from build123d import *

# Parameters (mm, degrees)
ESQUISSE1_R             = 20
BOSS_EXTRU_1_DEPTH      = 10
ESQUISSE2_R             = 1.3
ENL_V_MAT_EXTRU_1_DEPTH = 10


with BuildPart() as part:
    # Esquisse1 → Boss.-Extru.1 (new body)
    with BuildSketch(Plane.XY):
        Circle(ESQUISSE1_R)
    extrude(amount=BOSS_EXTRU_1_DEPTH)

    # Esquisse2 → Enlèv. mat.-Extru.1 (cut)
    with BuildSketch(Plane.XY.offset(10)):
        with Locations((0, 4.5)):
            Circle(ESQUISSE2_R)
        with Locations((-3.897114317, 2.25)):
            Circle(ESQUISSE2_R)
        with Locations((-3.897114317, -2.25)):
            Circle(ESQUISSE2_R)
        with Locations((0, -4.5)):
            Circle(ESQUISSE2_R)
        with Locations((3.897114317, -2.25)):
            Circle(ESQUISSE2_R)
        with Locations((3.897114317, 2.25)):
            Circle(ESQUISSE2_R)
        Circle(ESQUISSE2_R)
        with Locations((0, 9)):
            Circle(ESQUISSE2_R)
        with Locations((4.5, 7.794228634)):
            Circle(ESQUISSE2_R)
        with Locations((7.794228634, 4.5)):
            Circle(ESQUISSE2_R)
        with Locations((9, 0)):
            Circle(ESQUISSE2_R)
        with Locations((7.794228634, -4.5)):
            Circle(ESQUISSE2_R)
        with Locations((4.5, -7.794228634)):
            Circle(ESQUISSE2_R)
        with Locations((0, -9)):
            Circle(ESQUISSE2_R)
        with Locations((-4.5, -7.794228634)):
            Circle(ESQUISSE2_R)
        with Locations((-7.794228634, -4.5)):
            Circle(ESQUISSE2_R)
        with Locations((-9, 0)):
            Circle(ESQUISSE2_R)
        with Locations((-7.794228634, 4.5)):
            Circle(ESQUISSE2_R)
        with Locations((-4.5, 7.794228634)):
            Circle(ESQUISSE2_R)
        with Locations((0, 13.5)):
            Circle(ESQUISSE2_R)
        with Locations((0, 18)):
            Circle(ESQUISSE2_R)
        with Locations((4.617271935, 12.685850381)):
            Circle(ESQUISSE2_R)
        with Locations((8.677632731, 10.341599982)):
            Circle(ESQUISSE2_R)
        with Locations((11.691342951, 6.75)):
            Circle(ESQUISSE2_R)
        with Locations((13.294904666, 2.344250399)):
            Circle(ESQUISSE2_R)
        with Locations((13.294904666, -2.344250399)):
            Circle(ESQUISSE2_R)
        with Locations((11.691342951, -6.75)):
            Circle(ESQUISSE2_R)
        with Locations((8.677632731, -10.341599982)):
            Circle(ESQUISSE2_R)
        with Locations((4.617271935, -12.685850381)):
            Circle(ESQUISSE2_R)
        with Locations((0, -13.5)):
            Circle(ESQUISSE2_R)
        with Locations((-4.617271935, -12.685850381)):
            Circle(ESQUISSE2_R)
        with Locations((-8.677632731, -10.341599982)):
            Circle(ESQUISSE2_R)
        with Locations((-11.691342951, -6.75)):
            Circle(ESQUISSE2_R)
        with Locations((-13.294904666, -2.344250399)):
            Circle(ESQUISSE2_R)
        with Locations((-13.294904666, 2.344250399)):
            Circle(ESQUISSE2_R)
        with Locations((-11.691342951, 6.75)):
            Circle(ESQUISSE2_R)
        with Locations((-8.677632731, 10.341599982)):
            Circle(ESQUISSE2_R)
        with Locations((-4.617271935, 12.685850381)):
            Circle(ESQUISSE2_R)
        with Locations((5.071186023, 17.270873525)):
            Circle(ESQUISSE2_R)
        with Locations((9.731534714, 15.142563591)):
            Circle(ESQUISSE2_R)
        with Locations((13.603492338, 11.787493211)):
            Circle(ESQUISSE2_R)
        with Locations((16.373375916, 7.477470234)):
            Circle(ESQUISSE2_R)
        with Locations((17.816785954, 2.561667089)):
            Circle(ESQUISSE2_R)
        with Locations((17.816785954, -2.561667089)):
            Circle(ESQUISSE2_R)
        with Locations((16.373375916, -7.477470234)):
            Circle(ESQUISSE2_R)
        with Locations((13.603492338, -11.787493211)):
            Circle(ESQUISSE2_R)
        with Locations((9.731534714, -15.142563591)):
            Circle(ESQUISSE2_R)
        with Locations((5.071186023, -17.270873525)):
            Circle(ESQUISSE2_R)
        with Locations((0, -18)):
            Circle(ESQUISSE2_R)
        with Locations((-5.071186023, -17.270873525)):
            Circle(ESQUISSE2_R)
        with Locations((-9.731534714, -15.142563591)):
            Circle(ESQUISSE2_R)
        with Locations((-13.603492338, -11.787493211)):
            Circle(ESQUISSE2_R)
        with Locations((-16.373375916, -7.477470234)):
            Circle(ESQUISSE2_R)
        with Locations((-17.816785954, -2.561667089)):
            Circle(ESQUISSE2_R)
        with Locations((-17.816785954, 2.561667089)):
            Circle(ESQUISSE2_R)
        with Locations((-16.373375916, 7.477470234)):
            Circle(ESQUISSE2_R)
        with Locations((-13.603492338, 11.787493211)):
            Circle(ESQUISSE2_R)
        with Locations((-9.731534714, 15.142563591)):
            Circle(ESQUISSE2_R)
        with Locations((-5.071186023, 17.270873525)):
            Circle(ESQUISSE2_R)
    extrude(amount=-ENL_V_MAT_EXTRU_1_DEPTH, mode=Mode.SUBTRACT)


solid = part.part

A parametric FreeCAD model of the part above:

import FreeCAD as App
import Part
import Sketcher
from FreeCAD import Vector
Q = App.Units.Quantity

doc = App.newDocument("Part")
params = doc.addObject("Spreadsheet::Sheet", "Params")
for row, (alias, value) in enumerate([
    ("sketch1_diameter", "40 mm"),
    ("pad1_length", "10 mm"),
    ("sketch2_diameter", "2.6 mm"),
    ("pocket1_length", "10 mm"),
], start=1):
    params.set(f"A{row}", alias)
    params.set(f"B{row}", "=" + value)
    params.setAlias(f"B{row}", alias)

body = doc.addObject("PartDesign::Body", "Body")

# Sketch on XY plane
sketch1 = doc.addObject("Sketcher::SketchObject", "Sketch")
body.addObject(sketch1)
sketch1.AttachmentSupport = (doc.XY_Plane, [""])
sketch1.MapMode = "FlatFace"
sketch1.addGeometry(Part.Circle(Vector(0, 0, 0), Vector(0, 0, 1), 20), False)
sketch1.addConstraint(Sketcher.Constraint("Coincident", 0, 3, -1, 1))
sketch1.addConstraint(Sketcher.Constraint("Diameter", 0, Q("40 mm")))
sketch1.setExpression("Constraints[1]", "Params.sketch1_diameter")
pad1 = doc.addObject("PartDesign::Pad", "Pad")
body.addObject(pad1)
pad1.Profile = sketch1
pad1.setExpression("Length", "Params.pad1_length")

# Sketch on XY plane
sketch2 = doc.addObject("Sketcher::SketchObject", "Sketch001")
body.addObject(sketch2)
sketch2.AttachmentSupport = (doc.XY_Plane, [""])
sketch2.MapMode = "FlatFace"
sketch2.AttachmentOffset = App.Placement(Vector(0, 0, 10), App.Rotation())
sketch2.addGeometry(Part.Circle(Vector(0, 4.5, 0), Vector(0, 0, 1), 1.3), False)
sketch2.addGeometry(Part.Circle(Vector(-3.897114, 2.25, 0), Vector(0, 0, 1), 1.3), False)
sketch2.addGeometry(Part.Circle(Vector(-3.897114, -2.25, 0), Vector(0, 0, 1), 1.3), False)
sketch2.addGeometry(Part.Circle(Vector(0, -4.5, 0), Vector(0, 0, 1), 1.3), False)
sketch2.addGeometry(Part.Circle(Vector(3.897114, -2.25, 0), Vector(0, 0, 1), 1.3), False)
sketch2.addGeometry(Part.Circle(Vector(3.897114, 2.25, 0), Vector(0, 0, 1), 1.3), False)
sketch2.addGeometry(Part.Circle(Vector(0, 0, 0), Vector(0, 0, 1), 1.3), False)
sketch2.addGeometry(Part.Circle(Vector(0, 9, 0), Vector(0, 0, 1), 1.3), False)
sketch2.addGeometry(Part.Circle(Vector(4.5, 7.794229, 0), Vector(0, 0, 1), 1.3), False)
sketch2.addGeometry(Part.Circle(Vector(7.794229, 4.5, 0), Vector(0, 0, 1), 1.3), False)
sketch2.addGeometry(Part.Circle(Vector(9, 0, 0), Vector(0, 0, 1), 1.3), False)
sketch2.addGeometry(Part.Circle(Vector(7.794229, -4.5, 0), Vector(0, 0, 1), 1.3), False)
sketch2.addGeometry(Part.Circle(Vector(4.5, -7.794229, 0), Vector(0, 0, 1), 1.3), False)
sketch2.addGeometry(Part.Circle(Vector(0, -9, 0), Vector(0, 0, 1), 1.3), False)
sketch2.addGeometry(Part.Circle(Vector(-4.5, -7.794229, 0), Vector(0, 0, 1), 1.3), False)
sketch2.addGeometry(Part.Circle(Vector(-7.794229, -4.5, 0), Vector(0, 0, 1), 1.3), False)
sketch2.addGeometry(Part.Circle(Vector(-9, 0, 0), Vector(0, 0, 1), 1.3), False)
sketch2.addGeometry(Part.Circle(Vector(-7.794229, 4.5, 0), Vector(0, 0, 1), 1.3), False)
sketch2.addGeometry(Part.Circle(Vector(-4.5, 7.794229, 0), Vector(0, 0, 1), 1.3), False)
sketch2.addGeometry(Part.Circle(Vector(0, 13.5, 0), Vector(0, 0, 1), 1.3), False)
sketch2.addGeometry(Part.Circle(Vector(0, 18, 0), Vector(0, 0, 1), 1.3), False)
sketch2.addGeometry(Part.Circle(Vector(4.617272, 12.68585, 0), Vector(0, 0, 1), 1.3), False)
sketch2.addGeometry(Part.Circle(Vector(8.677633, 10.3416, 0), Vector(0, 0, 1), 1.3), False)
sketch2.addGeometry(Part.Circle(Vector(11.691343, 6.75, 0), Vector(0, 0, 1), 1.3), False)
sketch2.addGeometry(Part.Circle(Vector(13.294905, 2.34425, 0), Vector(0, 0, 1), 1.3), False)
sketch2.addGeometry(Part.Circle(Vector(13.294905, -2.34425, 0), Vector(0, 0, 1), 1.3), False)
sketch2.addGeometry(Part.Circle(Vector(11.691343, -6.75, 0), Vector(0, 0, 1), 1.3), False)
sketch2.addGeometry(Part.Circle(Vector(8.677633, -10.3416, 0), Vector(0, 0, 1), 1.3), False)
sketch2.addGeometry(Part.Circle(Vector(4.617272, -12.68585, 0), Vector(0, 0, 1), 1.3), False)
sketch2.addGeometry(Part.Circle(Vector(0, -13.5, 0), Vector(0, 0, 1), 1.3), False)
sketch2.addGeometry(Part.Circle(Vector(-4.617272, -12.68585, 0), Vector(0, 0, 1), 1.3), False)
sketch2.addGeometry(Part.Circle(Vector(-8.677633, -10.3416, 0), Vector(0, 0, 1), 1.3), False)
sketch2.addGeometry(Part.Circle(Vector(-11.691343, -6.75, 0), Vector(0, 0, 1), 1.3), False)
sketch2.addGeometry(Part.Circle(Vector(-13.294905, -2.34425, 0), Vector(0, 0, 1), 1.3), False)
sketch2.addGeometry(Part.Circle(Vector(-13.294905, 2.34425, 0), Vector(0, 0, 1), 1.3), False)
sketch2.addGeometry(Part.Circle(Vector(-11.691343, 6.75, 0), Vector(0, 0, 1), 1.3), False)
sketch2.addGeometry(Part.Circle(Vector(-8.677633, 10.3416, 0), Vector(0, 0, 1), 1.3), False)
sketch2.addGeometry(Part.Circle(Vector(-4.617272, 12.68585, 0), Vector(0, 0, 1), 1.3), False)
sketch2.addGeometry(Part.Circle(Vector(5.071186, 17.270874, 0), Vector(0, 0, 1), 1.3), False)
sketch2.addGeometry(Part.Circle(Vector(9.731535, 15.142564, 0), Vector(0, 0, 1), 1.3), False)
sketch2.addGeometry(Part.Circle(Vector(13.603492, 11.787493, 0), Vector(0, 0, 1), 1.3), False)
sketch2.addGeometry(Part.Circle(Vector(16.373376, 7.47747, 0), Vector(0, 0, 1), 1.3), False)
sketch2.addGeometry(Part.Circle(Vector(17.816786, 2.561667, 0), Vector(0, 0, 1), 1.3), False)
sketch2.addGeometry(Part.Circle(Vector(17.816786, -2.561667, 0), Vector(0, 0, 1), 1.3), False)
sketch2.addGeometry(Part.Circle(Vector(16.373376, -7.47747, 0), Vector(0, 0, 1), 1.3), False)
sketch2.addGeometry(Part.Circle(Vector(13.603492, -11.787493, 0), Vector(0, 0, 1), 1.3), False)
sketch2.addGeometry(Part.Circle(Vector(9.731535, -15.142564, 0), Vector(0, 0, 1), 1.3), False)
sketch2.addGeometry(Part.Circle(Vector(5.071186, -17.270874, 0), Vector(0, 0, 1), 1.3), False)
sketch2.addGeometry(Part.Circle(Vector(0, -18, 0), Vector(0, 0, 1), 1.3), False)
sketch2.addGeometry(Part.Circle(Vector(-5.071186, -17.270874, 0), Vector(0, 0, 1), 1.3), False)
sketch2.addGeometry(Part.Circle(Vector(-9.731535, -15.142564, 0), Vector(0, 0, 1), 1.3), False)
sketch2.addGeometry(Part.Circle(Vector(-13.603492, -11.787493, 0), Vector(0, 0, 1), 1.3), False)
sketch2.addGeometry(Part.Circle(Vector(-16.373376, -7.47747, 0), Vector(0, 0, 1), 1.3), False)
sketch2.addGeometry(Part.Circle(Vector(-17.816786, -2.561667, 0), Vector(0, 0, 1), 1.3), False)
sketch2.addGeometry(Part.Circle(Vector(-17.816786, 2.561667, 0), Vector(0, 0, 1), 1.3), False)
sketch2.addGeometry(Part.Circle(Vector(-16.373376, 7.47747, 0), Vector(0, 0, 1), 1.3), False)
sketch2.addGeometry(Part.Circle(Vector(-13.603492, 11.787493, 0), Vector(0, 0, 1), 1.3), False)
sketch2.addGeometry(Part.Circle(Vector(-9.731535, 15.142564, 0), Vector(0, 0, 1), 1.3), False)
sketch2.addGeometry(Part.Circle(Vector(-5.071186, 17.270874, 0), Vector(0, 0, 1), 1.3), False)
sketch2.addConstraint(Sketcher.Constraint("Coincident", 6, 3, -1, 1))
sketch2.addConstraint(Sketcher.Constraint("Equal", 0, 1))
sketch2.addConstraint(Sketcher.Constraint("Equal", 1, 2))
sketch2.addConstraint(Sketcher.Constraint("Equal", 2, 3))
sketch2.addConstraint(Sketcher.Constraint("Equal", 3, 4))
sketch2.addConstraint(Sketcher.Constraint("Equal", 4, 5))
sketch2.addConstraint(Sketcher.Constraint("Equal", 5, 6))
sketch2.addConstraint(Sketcher.Constraint("Equal", 6, 7))
sketch2.addConstraint(Sketcher.Constraint("Equal", 7, 8))
sketch2.addConstraint(Sketcher.Constraint("Equal", 8, 9))
sketch2.addConstraint(Sketcher.Constraint("Equal", 9, 10))
sketch2.addConstraint(Sketcher.Constraint("Equal", 10, 11))
sketch2.addConstraint(Sketcher.Constraint("Equal", 11, 12))
sketch2.addConstraint(Sketcher.Constraint("Equal", 12, 13))
sketch2.addConstraint(Sketcher.Constraint("Equal", 13, 14))
sketch2.addConstraint(Sketcher.Constraint("Equal", 14, 15))
sketch2.addConstraint(Sketcher.Constraint("Equal", 15, 16))
sketch2.addConstraint(Sketcher.Constraint("Equal", 16, 17))
sketch2.addConstraint(Sketcher.Constraint("Equal", 17, 18))
sketch2.addConstraint(Sketcher.Constraint("Equal", 18, 19))
sketch2.addConstraint(Sketcher.Constraint("Equal", 19, 20))
sketch2.addConstraint(Sketcher.Constraint("Equal", 20, 21))
sketch2.addConstraint(Sketcher.Constraint("Equal", 21, 22))
sketch2.addConstraint(Sketcher.Constraint("Equal", 22, 23))
sketch2.addConstraint(Sketcher.Constraint("Equal", 23, 24))
sketch2.addConstraint(Sketcher.Constraint("Equal", 24, 25))
sketch2.addConstraint(Sketcher.Constraint("Equal", 25, 26))
sketch2.addConstraint(Sketcher.Constraint("Equal", 26, 27))
sketch2.addConstraint(Sketcher.Constraint("Equal", 27, 28))
sketch2.addConstraint(Sketcher.Constraint("Equal", 28, 29))
sketch2.addConstraint(Sketcher.Constraint("Equal", 29, 30))
sketch2.addConstraint(Sketcher.Constraint("Equal", 30, 31))
sketch2.addConstraint(Sketcher.Constraint("Equal", 31, 32))
sketch2.addConstraint(Sketcher.Constraint("Equal", 32, 33))
sketch2.addConstraint(Sketcher.Constraint("Equal", 33, 34))
sketch2.addConstraint(Sketcher.Constraint("Equal", 34, 35))
sketch2.addConstraint(Sketcher.Constraint("Equal", 35, 36))
sketch2.addConstraint(Sketcher.Constraint("Equal", 36, 37))
sketch2.addConstraint(Sketcher.Constraint("Equal", 37, 38))
sketch2.addConstraint(Sketcher.Constraint("Equal", 38, 39))
sketch2.addConstraint(Sketcher.Constraint("Equal", 39, 40))
sketch2.addConstraint(Sketcher.Constraint("Equal", 40, 41))
sketch2.addConstraint(Sketcher.Constraint("Equal", 41, 42))
sketch2.addConstraint(Sketcher.Constraint("Equal", 42, 43))
sketch2.addConstraint(Sketcher.Constraint("Equal", 43, 44))
sketch2.addConstraint(Sketcher.Constraint("Equal", 44, 45))
sketch2.addConstraint(Sketcher.Constraint("Equal", 45, 46))
sketch2.addConstraint(Sketcher.Constraint("Equal", 46, 47))
sketch2.addConstraint(Sketcher.Constraint("Equal", 47, 48))
sketch2.addConstraint(Sketcher.Constraint("Equal", 48, 49))
sketch2.addConstraint(Sketcher.Constraint("Equal", 49, 50))
sketch2.addConstraint(Sketcher.Constraint("Equal", 50, 51))
sketch2.addConstraint(Sketcher.Constraint("Equal", 51, 52))
sketch2.addConstraint(Sketcher.Constraint("Equal", 52, 53))
sketch2.addConstraint(Sketcher.Constraint("Equal", 53, 54))
sketch2.addConstraint(Sketcher.Constraint("Equal", 54, 55))
sketch2.addConstraint(Sketcher.Constraint("Equal", 55, 56))
sketch2.addConstraint(Sketcher.Constraint("Equal", 56, 57))
sketch2.addConstraint(Sketcher.Constraint("Equal", 57, 58))
sketch2.addConstraint(Sketcher.Constraint("Symmetric", 0, 3, 3, 3, -1, 1))
sketch2.addConstraint(Sketcher.Constraint("Symmetric", 1, 3, 4, 3, -1, 1))
sketch2.addConstraint(Sketcher.Constraint("Symmetric", 2, 3, 5, 3, -1, 1))
sketch2.addConstraint(Sketcher.Constraint("Symmetric", 7, 3, 13, 3, -1, 1))
sketch2.addConstraint(Sketcher.Constraint("Symmetric", 8, 3, 14, 3, -1, 1))
sketch2.addConstraint(Sketcher.Constraint("Symmetric", 9, 3, 15, 3, -1, 1))
sketch2.addConstraint(Sketcher.Constraint("Symmetric", 10, 3, 16, 3, -1, 1))
sketch2.addConstraint(Sketcher.Constraint("Symmetric", 11, 3, 17, 3, -1, 1))
sketch2.addConstraint(Sketcher.Constraint("Symmetric", 12, 3, 18, 3, -1, 1))
sketch2.addConstraint(Sketcher.Constraint("Symmetric", 19, 3, 29, 3, -1, 1))
sketch2.addConstraint(Sketcher.Constraint("Symmetric", 21, 3, 30, 3, -1, 1))
sketch2.addConstraint(Sketcher.Constraint("Symmetric", 22, 3, 31, 3, -1, 1))
sketch2.addConstraint(Sketcher.Constraint("Symmetric", 23, 3, 32, 3, -1, 1))
sketch2.addConstraint(Sketcher.Constraint("Symmetric", 24, 3, 33, 3, -1, 1))
sketch2.addConstraint(Sketcher.Constraint("Symmetric", 25, 3, 34, 3, -1, 1))
sketch2.addConstraint(Sketcher.Constraint("Symmetric", 26, 3, 35, 3, -1, 1))
sketch2.addConstraint(Sketcher.Constraint("Symmetric", 27, 3, 36, 3, -1, 1))
sketch2.addConstraint(Sketcher.Constraint("Symmetric", 28, 3, 37, 3, -1, 1))
sketch2.addConstraint(Sketcher.Constraint("Symmetric", 20, 3, 48, 3, -1, 1))
sketch2.addConstraint(Sketcher.Constraint("Symmetric", 38, 3, 49, 3, -1, 1))
sketch2.addConstraint(Sketcher.Constraint("Symmetric", 39, 3, 50, 3, -1, 1))
sketch2.addConstraint(Sketcher.Constraint("Symmetric", 40, 3, 51, 3, -1, 1))
sketch2.addConstraint(Sketcher.Constraint("Symmetric", 41, 3, 52, 3, -1, 1))
sketch2.addConstraint(Sketcher.Constraint("Symmetric", 42, 3, 53, 3, -1, 1))
sketch2.addConstraint(Sketcher.Constraint("Symmetric", 43, 3, 54, 3, -1, 1))
sketch2.addConstraint(Sketcher.Constraint("Symmetric", 44, 3, 55, 3, -1, 1))
sketch2.addConstraint(Sketcher.Constraint("Symmetric", 45, 3, 56, 3, -1, 1))
sketch2.addConstraint(Sketcher.Constraint("Symmetric", 46, 3, 57, 3, -1, 1))
sketch2.addConstraint(Sketcher.Constraint("Symmetric", 47, 3, 58, 3, -1, 1))
sketch2.addConstraint(Sketcher.Constraint("Symmetric", 2, 3, 4, 3, -2))
sketch2.addConstraint(Sketcher.Constraint("Symmetric", 12, 3, 14, 3, -2))
sketch2.addConstraint(Sketcher.Constraint("Symmetric", 11, 3, 15, 3, -2))
sketch2.addConstraint(Sketcher.Constraint("Symmetric", 28, 3, 30, 3, -2))
sketch2.addConstraint(Sketcher.Constraint("Symmetric", 27, 3, 31, 3, -2))
sketch2.addConstraint(Sketcher.Constraint("Symmetric", 26, 3, 32, 3, -2))
sketch2.addConstraint(Sketcher.Constraint("Symmetric", 25, 3, 33, 3, -2))
sketch2.addConstraint(Sketcher.Constraint("Symmetric", 47, 3, 49, 3, -2))
sketch2.addConstraint(Sketcher.Constraint("Symmetric", 46, 3, 50, 3, -2))
sketch2.addConstraint(Sketcher.Constraint("Symmetric", 45, 3, 51, 3, -2))
sketch2.addConstraint(Sketcher.Constraint("Symmetric", 44, 3, 52, 3, -2))
sketch2.addConstraint(Sketcher.Constraint("Symmetric", 43, 3, 53, 3, -2))
sketch2.addConstraint(Sketcher.Constraint("PointOnObject", 0, 3, -2))
sketch2.addConstraint(Sketcher.Constraint("PointOnObject", 7, 3, -2))
sketch2.addConstraint(Sketcher.Constraint("PointOnObject", 10, 3, -1))
sketch2.addConstraint(Sketcher.Constraint("PointOnObject", 19, 3, -2))
sketch2.addConstraint(Sketcher.Constraint("PointOnObject", 20, 3, -2))
sketch2.addConstraint(Sketcher.Constraint("Horizontal", 0, 3, 9, 3))
sketch2.addConstraint(Sketcher.Constraint("Diameter", 0, Q("2.6 mm")))
sketch2.addConstraint(Sketcher.Constraint("DistanceY", -1, 1, 7, 3, Q("9 mm")))
sketch2.addConstraint(Sketcher.Constraint("DistanceX", -1, 1, 10, 3, Q("9 mm")))
sketch2.addConstraint(Sketcher.Constraint("DistanceY", -1, 1, 20, 3, Q("18 mm")))
sketch2.addConstraint(Sketcher.Constraint("DistanceY", 3, 3, 0, 3, Q("9 mm")))
sketch2.addConstraint(Sketcher.Constraint("DistanceX", 14, 3, 12, 3, Q("9 mm")))
sketch2.addConstraint(Sketcher.Constraint("DistanceY", 0, 3, 19, 3, Q("9 mm")))
sketch2.addConstraint(Sketcher.Constraint("DistanceY", 2, 3, 1, 3, Q("4.5 mm")))
sketch2.addConstraint(Sketcher.Constraint("DistanceY", 5, 3, 23, 3, Q("4.5 mm")))
sketch2.addConstraint(Sketcher.Constraint("DistanceY", -1, 1, 22, 3, Q("10.3416 mm")))
sketch2.addConstraint(Sketcher.Constraint("DistanceY", 25, 3, 24, 3, Q("4.688501 mm")))
sketch2.addConstraint(Sketcher.Constraint("DistanceX", 22, 3, 39, 3, Q("1.053902 mm")))
sketch2.addConstraint(Sketcher.Constraint("DistanceY", -1, 1, 8, 3, Q("7.794229 mm")))
sketch2.addConstraint(Sketcher.Constraint("DistanceX", -1, 1, 9, 3, Q("7.794229 mm")))
sketch2.addConstraint(Sketcher.Constraint("DistanceX", -1, 1, 21, 3, Q("4.617272 mm")))
sketch2.addConstraint(Sketcher.Constraint("DistanceY", -1, 1, 21, 3, Q("12.68585 mm")))
sketch2.addConstraint(Sketcher.Constraint("DistanceY", -1, 1, 41, 3, Q("7.47747 mm")))
sketch2.addConstraint(Sketcher.Constraint("DistanceX", 2, 3, 4, 3, Q("7.794229 mm")))
sketch2.addConstraint(Sketcher.Constraint("DistanceX", 21, 3, 22, 3, Q("4.060361 mm")))
sketch2.addConstraint(Sketcher.Constraint("DistanceX", 22, 3, 23, 3, Q("3.01371 mm")))
sketch2.addConstraint(Sketcher.Constraint("DistanceX", 23, 3, 24, 3, Q("1.603562 mm")))
sketch2.addConstraint(Sketcher.Constraint("DistanceX", 38, 3, 39, 3, Q("4.660349 mm")))
sketch2.addConstraint(Sketcher.Constraint("DistanceY", 39, 3, 38, 3, Q("2.12831 mm")))
sketch2.addConstraint(Sketcher.Constraint("DistanceY", 40, 3, 39, 3, Q("3.35507 mm")))
sketch2.addConstraint(Sketcher.Constraint("DistanceX", 22, 3, 40, 3, Q("4.92586 mm")))
sketch2.addConstraint(Sketcher.Constraint("DistanceX", 24, 3, 41, 3, Q("3.078471 mm")))
sketch2.addConstraint(Sketcher.Constraint("DistanceX", 24, 3, 42, 3, Q("4.521881 mm")))
sketch2.addConstraint(Sketcher.Constraint("DistanceY", -1, 1, 38, 3, Q("17.270874 mm")))
sketch2.addConstraint(Sketcher.Constraint("DistanceY", -1, 1, 42, 3, Q("2.561667 mm")))
sketch2.setExpression("Constraints[106]", "Params.sketch2_diameter")
pocket1 = doc.addObject("PartDesign::Pocket", "Pocket")
body.addObject(pocket1)
pocket1.Profile = sketch2
pocket1.setExpression("Length", "Params.pocket1_length")

doc.recompute()
